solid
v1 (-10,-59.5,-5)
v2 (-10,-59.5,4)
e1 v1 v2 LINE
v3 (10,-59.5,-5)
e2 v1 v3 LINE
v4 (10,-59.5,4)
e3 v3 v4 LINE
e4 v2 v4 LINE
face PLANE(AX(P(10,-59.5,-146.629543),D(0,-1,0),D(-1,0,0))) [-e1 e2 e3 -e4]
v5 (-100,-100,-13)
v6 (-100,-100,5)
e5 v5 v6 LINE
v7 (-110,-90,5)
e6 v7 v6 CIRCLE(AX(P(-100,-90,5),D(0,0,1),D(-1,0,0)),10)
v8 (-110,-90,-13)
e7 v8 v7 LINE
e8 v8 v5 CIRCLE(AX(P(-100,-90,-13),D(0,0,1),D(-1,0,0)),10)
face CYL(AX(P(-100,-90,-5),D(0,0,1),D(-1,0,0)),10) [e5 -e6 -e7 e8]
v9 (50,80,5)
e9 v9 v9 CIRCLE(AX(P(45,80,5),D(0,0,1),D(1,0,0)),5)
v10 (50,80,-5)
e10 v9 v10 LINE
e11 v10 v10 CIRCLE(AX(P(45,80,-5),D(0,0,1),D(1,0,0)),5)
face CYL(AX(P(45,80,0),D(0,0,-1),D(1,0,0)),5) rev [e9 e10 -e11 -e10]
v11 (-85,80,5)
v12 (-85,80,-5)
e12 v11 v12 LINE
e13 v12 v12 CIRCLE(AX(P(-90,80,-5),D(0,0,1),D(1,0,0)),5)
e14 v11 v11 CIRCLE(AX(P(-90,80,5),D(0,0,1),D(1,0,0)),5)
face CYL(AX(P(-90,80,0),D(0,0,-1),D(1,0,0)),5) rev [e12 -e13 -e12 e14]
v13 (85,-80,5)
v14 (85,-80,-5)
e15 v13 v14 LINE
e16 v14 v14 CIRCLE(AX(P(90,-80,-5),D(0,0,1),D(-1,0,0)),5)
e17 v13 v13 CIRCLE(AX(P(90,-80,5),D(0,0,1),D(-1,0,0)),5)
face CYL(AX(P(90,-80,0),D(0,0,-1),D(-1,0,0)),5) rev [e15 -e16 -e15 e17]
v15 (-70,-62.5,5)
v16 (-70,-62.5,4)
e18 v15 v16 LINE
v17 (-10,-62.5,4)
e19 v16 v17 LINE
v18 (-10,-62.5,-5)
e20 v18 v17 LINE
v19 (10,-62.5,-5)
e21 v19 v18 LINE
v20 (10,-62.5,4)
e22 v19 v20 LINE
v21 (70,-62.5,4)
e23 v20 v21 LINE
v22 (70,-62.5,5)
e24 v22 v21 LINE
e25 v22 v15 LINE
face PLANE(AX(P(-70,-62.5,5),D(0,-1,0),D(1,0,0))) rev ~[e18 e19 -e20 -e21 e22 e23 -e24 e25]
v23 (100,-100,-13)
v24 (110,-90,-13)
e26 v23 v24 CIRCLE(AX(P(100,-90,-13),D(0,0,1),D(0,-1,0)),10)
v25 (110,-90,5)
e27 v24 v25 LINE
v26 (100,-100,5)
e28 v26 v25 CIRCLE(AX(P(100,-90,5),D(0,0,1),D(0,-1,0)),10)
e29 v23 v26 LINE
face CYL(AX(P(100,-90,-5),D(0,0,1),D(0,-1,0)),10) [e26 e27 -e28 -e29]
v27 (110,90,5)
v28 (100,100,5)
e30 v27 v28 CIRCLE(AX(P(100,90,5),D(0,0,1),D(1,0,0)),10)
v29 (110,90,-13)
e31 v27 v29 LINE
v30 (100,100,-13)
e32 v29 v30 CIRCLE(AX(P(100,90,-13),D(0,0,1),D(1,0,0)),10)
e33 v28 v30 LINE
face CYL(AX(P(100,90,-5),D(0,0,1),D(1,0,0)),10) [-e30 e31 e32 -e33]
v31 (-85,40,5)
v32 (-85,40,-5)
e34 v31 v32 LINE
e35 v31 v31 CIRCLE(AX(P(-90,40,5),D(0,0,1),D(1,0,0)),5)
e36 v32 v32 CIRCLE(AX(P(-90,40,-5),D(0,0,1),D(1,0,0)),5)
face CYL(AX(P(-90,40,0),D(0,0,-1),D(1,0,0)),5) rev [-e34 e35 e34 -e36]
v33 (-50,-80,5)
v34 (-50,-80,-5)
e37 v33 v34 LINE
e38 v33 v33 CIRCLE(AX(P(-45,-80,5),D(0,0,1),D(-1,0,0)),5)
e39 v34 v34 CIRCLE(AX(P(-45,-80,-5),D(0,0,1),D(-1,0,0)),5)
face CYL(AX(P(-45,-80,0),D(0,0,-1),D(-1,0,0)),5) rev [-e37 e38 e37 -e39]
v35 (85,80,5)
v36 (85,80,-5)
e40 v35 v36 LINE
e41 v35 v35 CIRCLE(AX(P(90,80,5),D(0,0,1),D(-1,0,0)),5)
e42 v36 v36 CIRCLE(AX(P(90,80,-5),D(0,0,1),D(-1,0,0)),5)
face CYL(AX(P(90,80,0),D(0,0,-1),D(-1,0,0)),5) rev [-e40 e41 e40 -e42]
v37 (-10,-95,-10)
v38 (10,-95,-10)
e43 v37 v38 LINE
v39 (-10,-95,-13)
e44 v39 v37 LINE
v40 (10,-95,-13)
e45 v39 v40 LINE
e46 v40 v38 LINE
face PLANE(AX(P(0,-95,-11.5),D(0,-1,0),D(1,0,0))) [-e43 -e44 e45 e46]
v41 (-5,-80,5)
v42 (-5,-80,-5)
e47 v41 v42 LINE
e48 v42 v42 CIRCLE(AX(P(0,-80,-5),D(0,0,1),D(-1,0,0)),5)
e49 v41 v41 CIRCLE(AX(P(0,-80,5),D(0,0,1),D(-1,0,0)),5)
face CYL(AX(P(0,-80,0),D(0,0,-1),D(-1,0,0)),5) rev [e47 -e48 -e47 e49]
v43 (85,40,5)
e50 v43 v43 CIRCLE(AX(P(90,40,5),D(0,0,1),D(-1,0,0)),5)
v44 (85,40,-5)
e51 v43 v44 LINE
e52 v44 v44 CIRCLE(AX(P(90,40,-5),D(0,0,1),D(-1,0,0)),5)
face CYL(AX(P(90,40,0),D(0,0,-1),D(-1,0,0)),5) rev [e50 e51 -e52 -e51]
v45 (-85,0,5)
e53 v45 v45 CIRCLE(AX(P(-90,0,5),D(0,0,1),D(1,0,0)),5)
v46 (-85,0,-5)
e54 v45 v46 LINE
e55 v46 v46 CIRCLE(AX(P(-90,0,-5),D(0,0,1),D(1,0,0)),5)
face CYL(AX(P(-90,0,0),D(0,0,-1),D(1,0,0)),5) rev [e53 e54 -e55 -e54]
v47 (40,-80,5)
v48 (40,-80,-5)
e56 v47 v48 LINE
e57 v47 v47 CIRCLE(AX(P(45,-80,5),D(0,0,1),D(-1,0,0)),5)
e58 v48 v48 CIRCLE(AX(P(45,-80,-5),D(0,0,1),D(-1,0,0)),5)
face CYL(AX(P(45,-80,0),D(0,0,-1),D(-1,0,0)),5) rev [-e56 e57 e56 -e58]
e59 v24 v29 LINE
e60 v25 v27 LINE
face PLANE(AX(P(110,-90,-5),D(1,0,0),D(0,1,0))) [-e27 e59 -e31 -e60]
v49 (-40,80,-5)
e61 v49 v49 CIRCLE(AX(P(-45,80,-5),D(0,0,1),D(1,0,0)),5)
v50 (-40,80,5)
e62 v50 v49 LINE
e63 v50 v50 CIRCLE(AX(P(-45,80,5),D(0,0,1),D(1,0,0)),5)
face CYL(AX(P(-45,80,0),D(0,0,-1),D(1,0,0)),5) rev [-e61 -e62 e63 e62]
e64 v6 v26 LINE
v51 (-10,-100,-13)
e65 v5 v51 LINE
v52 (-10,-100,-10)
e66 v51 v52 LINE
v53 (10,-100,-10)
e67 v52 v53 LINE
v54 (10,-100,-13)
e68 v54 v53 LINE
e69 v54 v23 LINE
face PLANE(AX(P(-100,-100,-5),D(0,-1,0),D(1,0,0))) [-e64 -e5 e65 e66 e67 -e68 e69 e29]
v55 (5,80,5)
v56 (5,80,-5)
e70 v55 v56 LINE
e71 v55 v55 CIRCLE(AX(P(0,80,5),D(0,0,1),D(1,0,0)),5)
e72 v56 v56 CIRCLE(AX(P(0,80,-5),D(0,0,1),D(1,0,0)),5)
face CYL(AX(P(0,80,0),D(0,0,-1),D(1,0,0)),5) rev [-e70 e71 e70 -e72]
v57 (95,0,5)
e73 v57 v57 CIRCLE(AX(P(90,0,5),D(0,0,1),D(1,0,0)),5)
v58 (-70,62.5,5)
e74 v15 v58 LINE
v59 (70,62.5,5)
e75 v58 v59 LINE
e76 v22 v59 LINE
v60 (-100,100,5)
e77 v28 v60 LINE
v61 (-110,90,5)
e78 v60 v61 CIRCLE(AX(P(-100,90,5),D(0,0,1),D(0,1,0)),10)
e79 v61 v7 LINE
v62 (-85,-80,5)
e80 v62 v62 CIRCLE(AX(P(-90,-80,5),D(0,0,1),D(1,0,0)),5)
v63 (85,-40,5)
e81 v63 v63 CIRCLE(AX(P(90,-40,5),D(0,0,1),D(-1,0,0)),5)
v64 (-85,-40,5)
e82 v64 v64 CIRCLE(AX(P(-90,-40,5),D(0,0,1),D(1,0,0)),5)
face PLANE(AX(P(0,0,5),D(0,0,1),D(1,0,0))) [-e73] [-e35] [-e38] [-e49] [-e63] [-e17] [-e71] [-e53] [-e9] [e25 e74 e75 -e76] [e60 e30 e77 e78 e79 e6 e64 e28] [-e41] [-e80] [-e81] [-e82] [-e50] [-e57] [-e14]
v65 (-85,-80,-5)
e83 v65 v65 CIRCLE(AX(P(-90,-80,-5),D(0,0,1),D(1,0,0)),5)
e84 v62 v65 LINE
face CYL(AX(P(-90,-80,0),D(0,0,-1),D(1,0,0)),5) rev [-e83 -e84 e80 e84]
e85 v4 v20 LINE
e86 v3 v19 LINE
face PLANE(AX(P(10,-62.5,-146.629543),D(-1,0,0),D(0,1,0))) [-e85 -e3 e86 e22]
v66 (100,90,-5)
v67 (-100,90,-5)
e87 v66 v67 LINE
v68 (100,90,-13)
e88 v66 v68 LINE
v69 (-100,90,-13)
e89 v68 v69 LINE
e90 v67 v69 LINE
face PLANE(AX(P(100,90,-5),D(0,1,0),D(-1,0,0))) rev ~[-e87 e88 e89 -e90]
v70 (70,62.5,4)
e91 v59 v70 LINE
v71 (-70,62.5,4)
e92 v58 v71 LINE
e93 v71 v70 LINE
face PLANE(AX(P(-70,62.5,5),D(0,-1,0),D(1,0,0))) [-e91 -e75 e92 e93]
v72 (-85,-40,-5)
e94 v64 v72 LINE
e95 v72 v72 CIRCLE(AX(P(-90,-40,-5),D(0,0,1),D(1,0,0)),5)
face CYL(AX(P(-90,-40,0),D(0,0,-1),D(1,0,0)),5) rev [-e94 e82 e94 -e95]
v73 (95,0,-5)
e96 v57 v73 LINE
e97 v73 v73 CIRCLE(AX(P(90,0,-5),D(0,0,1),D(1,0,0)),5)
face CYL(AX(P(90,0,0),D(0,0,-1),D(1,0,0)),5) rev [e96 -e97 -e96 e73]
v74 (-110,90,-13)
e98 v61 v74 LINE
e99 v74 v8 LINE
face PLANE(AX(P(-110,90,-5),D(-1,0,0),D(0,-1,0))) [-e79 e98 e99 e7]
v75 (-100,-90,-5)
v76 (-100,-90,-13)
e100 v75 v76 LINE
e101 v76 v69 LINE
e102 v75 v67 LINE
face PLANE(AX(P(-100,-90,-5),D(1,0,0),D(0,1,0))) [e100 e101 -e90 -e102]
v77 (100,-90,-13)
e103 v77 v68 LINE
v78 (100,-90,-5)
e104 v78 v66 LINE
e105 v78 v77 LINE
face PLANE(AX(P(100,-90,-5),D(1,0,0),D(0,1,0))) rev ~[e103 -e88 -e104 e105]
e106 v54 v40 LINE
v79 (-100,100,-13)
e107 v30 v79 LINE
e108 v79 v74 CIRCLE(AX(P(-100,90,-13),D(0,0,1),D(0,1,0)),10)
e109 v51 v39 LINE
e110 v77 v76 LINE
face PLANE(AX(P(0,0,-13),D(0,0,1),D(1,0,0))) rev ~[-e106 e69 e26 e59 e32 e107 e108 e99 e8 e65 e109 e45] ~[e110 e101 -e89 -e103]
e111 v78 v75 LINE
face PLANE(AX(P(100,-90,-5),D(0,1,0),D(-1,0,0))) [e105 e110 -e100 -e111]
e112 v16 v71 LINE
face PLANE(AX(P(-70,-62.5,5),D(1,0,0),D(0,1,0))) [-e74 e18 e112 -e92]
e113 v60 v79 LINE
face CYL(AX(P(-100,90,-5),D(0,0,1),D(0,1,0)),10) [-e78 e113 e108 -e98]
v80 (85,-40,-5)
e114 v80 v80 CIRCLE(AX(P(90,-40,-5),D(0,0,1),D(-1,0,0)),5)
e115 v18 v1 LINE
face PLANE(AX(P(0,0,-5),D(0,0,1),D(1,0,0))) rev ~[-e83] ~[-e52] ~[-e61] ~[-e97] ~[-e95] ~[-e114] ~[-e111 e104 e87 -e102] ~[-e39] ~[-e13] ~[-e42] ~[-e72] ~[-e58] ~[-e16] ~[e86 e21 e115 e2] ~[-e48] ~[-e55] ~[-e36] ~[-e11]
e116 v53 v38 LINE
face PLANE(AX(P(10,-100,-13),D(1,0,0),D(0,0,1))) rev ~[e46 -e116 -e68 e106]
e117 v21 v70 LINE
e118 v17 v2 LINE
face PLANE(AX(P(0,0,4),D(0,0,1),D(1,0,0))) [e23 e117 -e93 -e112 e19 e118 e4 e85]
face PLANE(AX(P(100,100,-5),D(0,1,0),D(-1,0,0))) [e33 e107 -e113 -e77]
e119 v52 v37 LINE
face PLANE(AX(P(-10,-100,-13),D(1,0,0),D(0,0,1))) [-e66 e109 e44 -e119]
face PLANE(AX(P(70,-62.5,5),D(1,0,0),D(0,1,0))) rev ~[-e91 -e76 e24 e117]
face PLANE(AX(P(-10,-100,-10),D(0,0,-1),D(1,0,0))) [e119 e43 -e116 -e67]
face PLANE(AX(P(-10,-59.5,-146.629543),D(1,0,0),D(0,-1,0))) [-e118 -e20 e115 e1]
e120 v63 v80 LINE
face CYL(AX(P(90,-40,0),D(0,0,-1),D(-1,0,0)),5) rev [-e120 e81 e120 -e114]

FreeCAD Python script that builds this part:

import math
import FreeCAD as App
import Part
import Sketcher
Q = App.Units.Quantity


def add_polygon(sketch, points):
    """Adds a closed chain of lines whose ends are joined by coincident constraints."""
    first, n = sketch.GeometryCount, len(points)
    for a, b in zip(points, points[1:] + points[:1]):
        sketch.addGeometry(Part.LineSegment(App.Vector(*a, 0), App.Vector(*b, 0)), False)
    for i in range(n):
        sketch.addConstraint(Sketcher.Constraint("Coincident", first + i, 2, first + (i + 1) % n, 1))

doc = App.newDocument("Part")
params = doc.addObject("Spreadsheet::Sheet", "Params")
for row, (alias, value) in enumerate([
    ("sketch1_diameter", "10 mm"),
    ("sketch1_radius", "10 mm"),
    ("sketch1_width", "200 mm"),
    ("sketch1_height", "180 mm"),
    ("pad1_length", "10 mm"),
    ("sketch2_radius", "10 mm"),
    ("sketch2_width", "200 mm"),
    ("sketch2_height", "180 mm"),
    ("pad2_length", "8 mm"),
    ("sketch3_width", "140 mm"),
    ("sketch3_height", "125 mm"),
    ("pocket1_length", "1 mm"),
    ("sketch4_width", "20 mm"),
    ("sketch4_height", "3 mm"),
    ("sketch5_width", "20 mm"),
    ("sketch5_height", "3 mm"),
    ("pocket3_length", "5 mm"),
], start=1):
    params.set(f"A{row}", alias)
    params.set(f"B{row}", "=" + value)
    params.setAlias(f"B{row}", alias)

body = doc.addObject("PartDesign::Body", "Body")

sketch1 = body.newObject("Sketcher::SketchObject", "Sketch")
sketch1.AttachmentSupport = (doc.getObject("XY_Plane"), [""])
sketch1.MapMode = "FlatFace"
sketch1.addGeometry(Part.LineSegment(App.Vector(-100, -100, 0), App.Vector(100, -100, 0)), False)
sketch1.addGeometry(Part.ArcOfCircle(Part.Circle(App.Vector(100, -90, 0), App.Vector(0, 0, 1), 10), math.radians(-90), math.radians(0)), False)
sketch1.addGeometry(Part.LineSegment(App.Vector(110, -90, 0), App.Vector(110, 90, 0)), False)
sketch1.addGeometry(Part.ArcOfCircle(Part.Circle(App.Vector(100, 90, 0), App.Vector(0, 0, 1), 10), math.radians(0), math.radians(90)), False)
sketch1.addGeometry(Part.LineSegment(App.Vector(100, 100, 0), App.Vector(-100, 100, 0)), False)
sketch1.addGeometry(Part.ArcOfCircle(Part.Circle(App.Vector(-100, 90, 0), App.Vector(0, 0, 1), 10), math.radians(90), math.radians(180)), False)
sketch1.addGeometry(Part.LineSegment(App.Vector(-110, 90, 0), App.Vector(-110, -90, 0)), False)
sketch1.addGeometry(Part.ArcOfCircle(Part.Circle(App.Vector(-100, -90, 0), App.Vector(0, 0, 1), 10), math.radians(180), math.radians(270)), False)
sketch1.addGeometry(Part.Circle(App.Vector(-90, -80, 0), App.Vector(0, 0, 1), 5), False)
sketch1.addGeometry(Part.Circle(App.Vector(-45, -80, 0), App.Vector(0, 0, 1), 5), False)
sketch1.addGeometry(Part.Circle(App.Vector(-90, -40, 0), App.Vector(0, 0, 1), 5), False)
sketch1.addGeometry(Part.Circle(App.Vector(0, -80, 0), App.Vector(0, 0, 1), 5), False)
sketch1.addGeometry(Part.Circle(App.Vector(45, -80, 0), App.Vector(0, 0, 1), 5), False)
sketch1.addGeometry(Part.Circle(App.Vector(90, -80, 0), App.Vector(0, 0, 1), 5), False)
sketch1.addGeometry(Part.Circle(App.Vector(90, -40, 0), App.Vector(0, 0, 1), 5), False)
sketch1.addGeometry(Part.Circle(App.Vector(-90, 0, 0), App.Vector(0, 0, 1), 5), False)
sketch1.addGeometry(Part.Circle(App.Vector(-90, 40, 0), App.Vector(0, 0, 1), 5), False)
sketch1.addGeometry(Part.Circle(App.Vector(-90, 80, 0), App.Vector(0, 0, 1), 5), False)
sketch1.addGeometry(Part.Circle(App.Vector(-45, 80, 0), App.Vector(0, 0, 1), 5), False)
sketch1.addGeometry(Part.Circle(App.Vector(90, 0, 0), App.Vector(0, 0, 1), 5), False)
sketch1.addGeometry(Part.Circle(App.Vector(90, 40, 0), App.Vector(0, 0, 1), 5), False)
sketch1.addGeometry(Part.Circle(App.Vector(0, 80, 0), App.Vector(0, 0, 1), 5), False)
sketch1.addGeometry(Part.Circle(App.Vector(45, 80, 0), App.Vector(0, 0, 1), 5), False)
sketch1.addGeometry(Part.Circle(App.Vector(90, 80, 0), App.Vector(0, 0, 1), 5), False)
sketch1.addConstraint(Sketcher.Constraint("Tangent", 0, 2, 1, 1))
sketch1.addConstraint(Sketcher.Constraint("Tangent", 1, 2, 2, 1))
sketch1.addConstraint(Sketcher.Constraint("Tangent", 2, 2, 3, 1))
sketch1.addConstraint(Sketcher.Constraint("Tangent", 3, 2, 4, 1))
sketch1.addConstraint(Sketcher.Constraint("Tangent", 4, 2, 5, 1))
sketch1.addConstraint(Sketcher.Constraint("Tangent", 5, 2, 6, 1))
sketch1.addConstraint(Sketcher.Constraint("Tangent", 6, 2, 7, 1))
sketch1.addConstraint(Sketcher.Constraint("Tangent", 7, 2, 0, 1))
sketch1.addConstraint(Sketcher.Constraint("Horizontal", 0))
sketch1.addConstraint(Sketcher.Constraint("Vertical", 2))
sketch1.addConstraint(Sketcher.Constraint("Horizontal", 4))
sketch1.addConstraint(Sketcher.Constraint("Vertical", 6))
sketch1.addConstraint(Sketcher.Constraint("Equal", 1, 3))
sketch1.addConstraint(Sketcher.Constraint("Equal", 3, 5))
sketch1.addConstraint(Sketcher.Constraint("Equal", 5, 7))
sketch1.addConstraint(Sketcher.Constraint("Equal", 8, 9))
sketch1.addConstraint(Sketcher.Constraint("Equal", 9, 10))
sketch1.addConstraint(Sketcher.Constraint("Equal", 10, 11))
sketch1.addConstraint(Sketcher.Constraint("Equal", 11, 12))
sketch1.addConstraint(Sketcher.Constraint("Equal", 12, 13))
sketch1.addConstraint(Sketcher.Constraint("Equal", 13, 14))
sketch1.addConstraint(Sketcher.Constraint("Equal", 14, 15))
sketch1.addConstraint(Sketcher.Constraint("Equal", 15, 16))
sketch1.addConstraint(Sketcher.Constraint("Equal", 16, 17))
sketch1.addConstraint(Sketcher.Constraint("Equal", 17, 18))
sketch1.addConstraint(Sketcher.Constraint("Equal", 18, 19))
sketch1.addConstraint(Sketcher.Constraint("Equal", 19, 20))
sketch1.addConstraint(Sketcher.Constraint("Equal", 20, 21))
sketch1.addConstraint(Sketcher.Constraint("Equal", 21, 22))
sketch1.addConstraint(Sketcher.Constraint("Equal", 22, 23))
sketch1.addConstraint(Sketcher.Constraint("Symmetric", 1, 3, 5, 3, -1, 1))
sketch1.addConstraint(Sketcher.Constraint("Symmetric", 14, 3, 16, 3, -1, 1))
sketch1.addConstraint(Sketcher.Constraint("Symmetric", 13, 3, 17, 3, -1, 1))
sketch1.addConstraint(Sketcher.Constraint("Symmetric", 12, 3, 18, 3, -1, 1))
sketch1.addConstraint(Sketcher.Constraint("Symmetric", 15, 3, 19, 3, -1, 1))
sketch1.addConstraint(Sketcher.Constraint("Symmetric", 10, 3, 20, 3, -1, 1))
sketch1.addConstraint(Sketcher.Constraint("Symmetric", 11, 3, 21, 3, -1, 1))
sketch1.addConstraint(Sketcher.Constraint("Symmetric", 9, 3, 22, 3, -1, 1))
sketch1.addConstraint(Sketcher.Constraint("Symmetric", 8, 3, 23, 3, -1, 1))
sketch1.addConstraint(Sketcher.Constraint("Symmetric", 9, 3, 12, 3, -2))
sketch1.addConstraint(Sketcher.Constraint("Symmetric", 8, 3, 13, 3, -2))
sketch1.addConstraint(Sketcher.Constraint("Symmetric", 10, 3, 14, 3, -2))
sketch1.addConstraint(Sketcher.Constraint("PointOnObject", 11, 3, -2))
sketch1.addConstraint(Sketcher.Constraint("PointOnObject", 15, 3, -1))
sketch1.addConstraint(Sketcher.Constraint("Horizontal", 8, 3, 9, 3))
sketch1.addConstraint(Sketcher.Constraint("Horizontal", 9, 3, 11, 3))
sketch1.addConstraint(Sketcher.Constraint("Vertical", 8, 3, 10, 3))
sketch1.addConstraint(Sketcher.Constraint("Vertical", 10, 3, 15, 3))
sketch1.addConstraint(Sketcher.Constraint("Diameter", 8, Q("10 mm")))
sketch1.addConstraint(Sketcher.Constraint("Radius", 1, Q("10 mm")))
sketch1.addConstraint(Sketcher.Constraint("DistanceX", 0, 1, 0, 2, Q("200 mm")))
sketch1.addConstraint(Sketcher.Constraint("DistanceY", 2, 1, 2, 2, Q("180 mm")))
sketch1.addConstraint(Sketcher.Constraint("DistanceX", 8, 3, -1, 1, Q("90 mm")))
sketch1.addConstraint(Sketcher.Constraint("DistanceY", 8, 3, -1, 1, Q("80 mm")))
sketch1.addConstraint(Sketcher.Constraint("DistanceX", 9, 3, -1, 1, Q("45 mm")))
sketch1.addConstraint(Sketcher.Constraint("DistanceY", 10, 3, -1, 1, Q("40 mm")))
sketch1.setExpression("Constraints[48]", "Params.sketch1_diameter")
sketch1.setExpression("Constraints[49]", "Params.sketch1_radius")
sketch1.setExpression("Constraints[50]", "Params.sketch1_width")
sketch1.setExpression("Constraints[51]", "Params.sketch1_height")
pad1 = body.newObject("PartDesign::Pad", "Pad")
pad1.Profile = sketch1
pad1.setExpression("Length", "Params.pad1_length")
pad1.Midplane = True

sketch2 = body.newObject("Sketcher::SketchObject", "Sketch001")
sketch2.AttachmentSupport = (doc.getObject("XY_Plane"), [""])
sketch2.MapMode = "FlatFace"
sketch2.AttachmentOffset = App.Placement(App.Vector(0, 0, -5), App.Rotation())
sketch2.addGeometry(Part.LineSegment(App.Vector(-110, -90, 0), App.Vector(-110, 90, 0)), False)
sketch2.addGeometry(Part.ArcOfCircle(Part.Circle(App.Vector(-100, 90, 0), App.Vector(0, 0, 1), 10), math.radians(90), math.radians(180)), False)
sketch2.addGeometry(Part.LineSegment(App.Vector(-100, 100, 0), App.Vector(100, 100, 0)), False)
sketch2.addGeometry(Part.ArcOfCircle(Part.Circle(App.Vector(100, 90, 0), App.Vector(0, 0, 1), 10), math.radians(0), math.radians(90)), False)
sketch2.addGeometry(Part.LineSegment(App.Vector(110, 90, 0), App.Vector(110, -90, 0)), False)
sketch2.addGeometry(Part.ArcOfCircle(Part.Circle(App.Vector(100, -90, 0), App.Vector(0, 0, 1), 10), math.radians(-90), math.radians(0)), False)
sketch2.addGeometry(Part.LineSegment(App.Vector(100, -100, 0), App.Vector(-100, -100, 0)), False)
sketch2.addGeometry(Part.ArcOfCircle(Part.Circle(App.Vector(-100, -90, 0), App.Vector(0, 0, 1), 10), math.radians(180), math.radians(270)), False)
add_polygon(sketch2, [(100, -90), (100, 90), (-100, 90), (-100, -90)])
sketch2.addConstraint(Sketcher.Constraint("Tangent", 0, 2, 1, 2))
sketch2.addConstraint(Sketcher.Constraint("Tangent", 1, 1, 2, 1))
sketch2.addConstraint(Sketcher.Constraint("Tangent", 2, 2, 3, 2))
sketch2.addConstraint(Sketcher.Constraint("Tangent", 3, 1, 4, 1))
sketch2.addConstraint(Sketcher.Constraint("Tangent", 4, 2, 5, 2))
sketch2.addConstraint(Sketcher.Constraint("Tangent", 5, 1, 6, 1))
sketch2.addConstraint(Sketcher.Constraint("Tangent", 6, 2, 7, 2))
sketch2.addConstraint(Sketcher.Constraint("Tangent", 7, 1, 0, 1))
sketch2.addConstraint(Sketcher.Constraint("Vertical", 0))
sketch2.addConstraint(Sketcher.Constraint("Horizontal", 2))
sketch2.addConstraint(Sketcher.Constraint("Vertical", 4))
sketch2.addConstraint(Sketcher.Constraint("Horizontal", 6))
sketch2.addConstraint(Sketcher.Constraint("Vertical", 8))
sketch2.addConstraint(Sketcher.Constraint("Horizontal", 9))
sketch2.addConstraint(Sketcher.Constraint("Vertical", 10))
sketch2.addConstraint(Sketcher.Constraint("Horizontal", 11))
sketch2.addConstraint(Sketcher.Constraint("Coincident", 8, 2, 3, 3))
sketch2.addConstraint(Sketcher.Constraint("Coincident", 9, 2, 1, 3))
sketch2.addConstraint(Sketcher.Constraint("Coincident", 10, 2, 7, 3))
sketch2.addConstraint(Sketcher.Constraint("Equal", 3, 5))
sketch2.addConstraint(Sketcher.Constraint("Symmetric", 1, 3, 5, 3, -1, 1))
sketch2.addConstraint(Sketcher.Constraint("Radius", 1, Q("10 mm")))
sketch2.addConstraint(Sketcher.Constraint("DistanceX", 2, 1, 2, 2, Q("200 mm")))
sketch2.addConstraint(Sketcher.Constraint("DistanceY", 0, 1, 0, 2, Q("180 mm")))
sketch2.setExpression("Constraints[25]", "Params.sketch2_radius")
sketch2.setExpression("Constraints[26]", "Params.sketch2_width")
sketch2.setExpression("Constraints[27]", "Params.sketch2_height")
pad2 = body.newObject("PartDesign::Pad", "Pad001")
pad2.Profile = sketch2
pad2.setExpression("Length", "Params.pad2_length")
pad2.Reversed = True

sketch3 = body.newObject("Sketcher::SketchObject", "Sketch002")
sketch3.AttachmentSupport = (doc.getObject("XY_Plane"), [""])
sketch3.MapMode = "FlatFace"
sketch3.AttachmentOffset = App.Placement(App.Vector(0, 0, 5), App.Rotation())
add_polygon(sketch3, [(-70, 62.5), (-70, -62.5), (70, -62.5), (70, 62.5)])
sketch3.addConstraint(Sketcher.Constraint("Vertical", 0))
sketch3.addConstraint(Sketcher.Constraint("Horizontal", 1))
sketch3.addConstraint(Sketcher.Constraint("Vertical", 2))
sketch3.addConstraint(Sketcher.Constraint("Horizontal", 3))
sketch3.addConstraint(Sketcher.Constraint("Symmetric", 0, 2, 2, 2, -1, 1))
sketch3.addConstraint(Sketcher.Constraint("DistanceX", 1, 1, 1, 2, Q("140 mm")))
sketch3.addConstraint(Sketcher.Constraint("DistanceY", 0, 2, 0, 1, Q("125 mm")))
sketch3.setExpression("Constraints[9]", "Params.sketch3_width")
sketch3.setExpression("Constraints[10]", "Params.sketch3_height")
pocket1 = body.newObject("PartDesign::Pocket", "Pocket")
pocket1.Profile = sketch3
pocket1.setExpression("Length", "Params.pocket1_length")

sketch4 = body.newObject("Sketcher::SketchObject", "Sketch003")
sketch4.AttachmentSupport = (doc.getObject("XY_Plane"), [""])
sketch4.MapMode = "FlatFace"
sketch4.AttachmentOffset = App.Placement(App.Vector(0, 0, 4), App.Rotation())
add_polygon(sketch4, [(10, -62.5), (10, -59.5), (-10, -59.5), (-10, -62.5)])
sketch4.addConstraint(Sketcher.Constraint("Vertical", 0))
sketch4.addConstraint(Sketcher.Constraint("Horizontal", 1))
sketch4.addConstraint(Sketcher.Constraint("Vertical", 2))
sketch4.addConstraint(Sketcher.Constraint("Horizontal", 3))
sketch4.addConstraint(Sketcher.Constraint("DistanceX", 1, 2, 1, 1, Q("20 mm")))
sketch4.addConstraint(Sketcher.Constraint("DistanceY", 0, 1, 0, 2, Q("3 mm")))
sketch4.addConstraint(Sketcher.Constraint("DistanceX", -1, 1, 0, 2, Q("10 mm")))
sketch4.addConstraint(Sketcher.Constraint("DistanceY", 0, 2, -1, 1, Q("59.5 mm")))
sketch4.setExpression("Constraints[8]", "Params.sketch4_width")
sketch4.setExpression("Constraints[9]", "Params.sketch4_height")
pocket2 = body.newObject("PartDesign::Pocket", "Pocket001")
pocket2.Profile = sketch4
pocket2.Type = "ThroughAll"
pocket2.Midplane = True

sketch5 = body.newObject("Sketcher::SketchObject", "Sketch004")
sketch5.AttachmentSupport = (doc.getObject("XZ_Plane"), [""])
sketch5.MapMode = "FlatFace"
sketch5.AttachmentOffset = App.Placement(App.Vector(0, 0, 100), App.Rotation())
add_polygon(sketch5, [(-10, -10), (-10, -13), (10, -13), (10, -10)])
sketch5.addConstraint(Sketcher.Constraint("Vertical", 0))
sketch5.addConstraint(Sketcher.Constraint("Horizontal", 1))
sketch5.addConstraint(Sketcher.Constraint("Vertical", 2))
sketch5.addConstraint(Sketcher.Constraint("Horizontal", 3))
sketch5.addConstraint(Sketcher.Constraint("DistanceX", 1, 1, 1, 2, Q("20 mm")))
sketch5.addConstraint(Sketcher.Constraint("DistanceY", 0, 2, 0, 1, Q("3 mm")))
sketch5.addConstraint(Sketcher.Constraint("DistanceX", 0, 2, -1, 1, Q("10 mm")))
sketch5.addConstraint(Sketcher.Constraint("DistanceY", 0, 2, -1, 1, Q("13 mm")))
sketch5.setExpression("Constraints[8]", "Params.sketch5_width")
sketch5.setExpression("Constraints[9]", "Params.sketch5_height")
pocket3 = body.newObject("PartDesign::Pocket", "Pocket002")
pocket3.Profile = sketch5
pocket3.setExpression("Length", "Params.pocket3_length")

doc.recompute()
